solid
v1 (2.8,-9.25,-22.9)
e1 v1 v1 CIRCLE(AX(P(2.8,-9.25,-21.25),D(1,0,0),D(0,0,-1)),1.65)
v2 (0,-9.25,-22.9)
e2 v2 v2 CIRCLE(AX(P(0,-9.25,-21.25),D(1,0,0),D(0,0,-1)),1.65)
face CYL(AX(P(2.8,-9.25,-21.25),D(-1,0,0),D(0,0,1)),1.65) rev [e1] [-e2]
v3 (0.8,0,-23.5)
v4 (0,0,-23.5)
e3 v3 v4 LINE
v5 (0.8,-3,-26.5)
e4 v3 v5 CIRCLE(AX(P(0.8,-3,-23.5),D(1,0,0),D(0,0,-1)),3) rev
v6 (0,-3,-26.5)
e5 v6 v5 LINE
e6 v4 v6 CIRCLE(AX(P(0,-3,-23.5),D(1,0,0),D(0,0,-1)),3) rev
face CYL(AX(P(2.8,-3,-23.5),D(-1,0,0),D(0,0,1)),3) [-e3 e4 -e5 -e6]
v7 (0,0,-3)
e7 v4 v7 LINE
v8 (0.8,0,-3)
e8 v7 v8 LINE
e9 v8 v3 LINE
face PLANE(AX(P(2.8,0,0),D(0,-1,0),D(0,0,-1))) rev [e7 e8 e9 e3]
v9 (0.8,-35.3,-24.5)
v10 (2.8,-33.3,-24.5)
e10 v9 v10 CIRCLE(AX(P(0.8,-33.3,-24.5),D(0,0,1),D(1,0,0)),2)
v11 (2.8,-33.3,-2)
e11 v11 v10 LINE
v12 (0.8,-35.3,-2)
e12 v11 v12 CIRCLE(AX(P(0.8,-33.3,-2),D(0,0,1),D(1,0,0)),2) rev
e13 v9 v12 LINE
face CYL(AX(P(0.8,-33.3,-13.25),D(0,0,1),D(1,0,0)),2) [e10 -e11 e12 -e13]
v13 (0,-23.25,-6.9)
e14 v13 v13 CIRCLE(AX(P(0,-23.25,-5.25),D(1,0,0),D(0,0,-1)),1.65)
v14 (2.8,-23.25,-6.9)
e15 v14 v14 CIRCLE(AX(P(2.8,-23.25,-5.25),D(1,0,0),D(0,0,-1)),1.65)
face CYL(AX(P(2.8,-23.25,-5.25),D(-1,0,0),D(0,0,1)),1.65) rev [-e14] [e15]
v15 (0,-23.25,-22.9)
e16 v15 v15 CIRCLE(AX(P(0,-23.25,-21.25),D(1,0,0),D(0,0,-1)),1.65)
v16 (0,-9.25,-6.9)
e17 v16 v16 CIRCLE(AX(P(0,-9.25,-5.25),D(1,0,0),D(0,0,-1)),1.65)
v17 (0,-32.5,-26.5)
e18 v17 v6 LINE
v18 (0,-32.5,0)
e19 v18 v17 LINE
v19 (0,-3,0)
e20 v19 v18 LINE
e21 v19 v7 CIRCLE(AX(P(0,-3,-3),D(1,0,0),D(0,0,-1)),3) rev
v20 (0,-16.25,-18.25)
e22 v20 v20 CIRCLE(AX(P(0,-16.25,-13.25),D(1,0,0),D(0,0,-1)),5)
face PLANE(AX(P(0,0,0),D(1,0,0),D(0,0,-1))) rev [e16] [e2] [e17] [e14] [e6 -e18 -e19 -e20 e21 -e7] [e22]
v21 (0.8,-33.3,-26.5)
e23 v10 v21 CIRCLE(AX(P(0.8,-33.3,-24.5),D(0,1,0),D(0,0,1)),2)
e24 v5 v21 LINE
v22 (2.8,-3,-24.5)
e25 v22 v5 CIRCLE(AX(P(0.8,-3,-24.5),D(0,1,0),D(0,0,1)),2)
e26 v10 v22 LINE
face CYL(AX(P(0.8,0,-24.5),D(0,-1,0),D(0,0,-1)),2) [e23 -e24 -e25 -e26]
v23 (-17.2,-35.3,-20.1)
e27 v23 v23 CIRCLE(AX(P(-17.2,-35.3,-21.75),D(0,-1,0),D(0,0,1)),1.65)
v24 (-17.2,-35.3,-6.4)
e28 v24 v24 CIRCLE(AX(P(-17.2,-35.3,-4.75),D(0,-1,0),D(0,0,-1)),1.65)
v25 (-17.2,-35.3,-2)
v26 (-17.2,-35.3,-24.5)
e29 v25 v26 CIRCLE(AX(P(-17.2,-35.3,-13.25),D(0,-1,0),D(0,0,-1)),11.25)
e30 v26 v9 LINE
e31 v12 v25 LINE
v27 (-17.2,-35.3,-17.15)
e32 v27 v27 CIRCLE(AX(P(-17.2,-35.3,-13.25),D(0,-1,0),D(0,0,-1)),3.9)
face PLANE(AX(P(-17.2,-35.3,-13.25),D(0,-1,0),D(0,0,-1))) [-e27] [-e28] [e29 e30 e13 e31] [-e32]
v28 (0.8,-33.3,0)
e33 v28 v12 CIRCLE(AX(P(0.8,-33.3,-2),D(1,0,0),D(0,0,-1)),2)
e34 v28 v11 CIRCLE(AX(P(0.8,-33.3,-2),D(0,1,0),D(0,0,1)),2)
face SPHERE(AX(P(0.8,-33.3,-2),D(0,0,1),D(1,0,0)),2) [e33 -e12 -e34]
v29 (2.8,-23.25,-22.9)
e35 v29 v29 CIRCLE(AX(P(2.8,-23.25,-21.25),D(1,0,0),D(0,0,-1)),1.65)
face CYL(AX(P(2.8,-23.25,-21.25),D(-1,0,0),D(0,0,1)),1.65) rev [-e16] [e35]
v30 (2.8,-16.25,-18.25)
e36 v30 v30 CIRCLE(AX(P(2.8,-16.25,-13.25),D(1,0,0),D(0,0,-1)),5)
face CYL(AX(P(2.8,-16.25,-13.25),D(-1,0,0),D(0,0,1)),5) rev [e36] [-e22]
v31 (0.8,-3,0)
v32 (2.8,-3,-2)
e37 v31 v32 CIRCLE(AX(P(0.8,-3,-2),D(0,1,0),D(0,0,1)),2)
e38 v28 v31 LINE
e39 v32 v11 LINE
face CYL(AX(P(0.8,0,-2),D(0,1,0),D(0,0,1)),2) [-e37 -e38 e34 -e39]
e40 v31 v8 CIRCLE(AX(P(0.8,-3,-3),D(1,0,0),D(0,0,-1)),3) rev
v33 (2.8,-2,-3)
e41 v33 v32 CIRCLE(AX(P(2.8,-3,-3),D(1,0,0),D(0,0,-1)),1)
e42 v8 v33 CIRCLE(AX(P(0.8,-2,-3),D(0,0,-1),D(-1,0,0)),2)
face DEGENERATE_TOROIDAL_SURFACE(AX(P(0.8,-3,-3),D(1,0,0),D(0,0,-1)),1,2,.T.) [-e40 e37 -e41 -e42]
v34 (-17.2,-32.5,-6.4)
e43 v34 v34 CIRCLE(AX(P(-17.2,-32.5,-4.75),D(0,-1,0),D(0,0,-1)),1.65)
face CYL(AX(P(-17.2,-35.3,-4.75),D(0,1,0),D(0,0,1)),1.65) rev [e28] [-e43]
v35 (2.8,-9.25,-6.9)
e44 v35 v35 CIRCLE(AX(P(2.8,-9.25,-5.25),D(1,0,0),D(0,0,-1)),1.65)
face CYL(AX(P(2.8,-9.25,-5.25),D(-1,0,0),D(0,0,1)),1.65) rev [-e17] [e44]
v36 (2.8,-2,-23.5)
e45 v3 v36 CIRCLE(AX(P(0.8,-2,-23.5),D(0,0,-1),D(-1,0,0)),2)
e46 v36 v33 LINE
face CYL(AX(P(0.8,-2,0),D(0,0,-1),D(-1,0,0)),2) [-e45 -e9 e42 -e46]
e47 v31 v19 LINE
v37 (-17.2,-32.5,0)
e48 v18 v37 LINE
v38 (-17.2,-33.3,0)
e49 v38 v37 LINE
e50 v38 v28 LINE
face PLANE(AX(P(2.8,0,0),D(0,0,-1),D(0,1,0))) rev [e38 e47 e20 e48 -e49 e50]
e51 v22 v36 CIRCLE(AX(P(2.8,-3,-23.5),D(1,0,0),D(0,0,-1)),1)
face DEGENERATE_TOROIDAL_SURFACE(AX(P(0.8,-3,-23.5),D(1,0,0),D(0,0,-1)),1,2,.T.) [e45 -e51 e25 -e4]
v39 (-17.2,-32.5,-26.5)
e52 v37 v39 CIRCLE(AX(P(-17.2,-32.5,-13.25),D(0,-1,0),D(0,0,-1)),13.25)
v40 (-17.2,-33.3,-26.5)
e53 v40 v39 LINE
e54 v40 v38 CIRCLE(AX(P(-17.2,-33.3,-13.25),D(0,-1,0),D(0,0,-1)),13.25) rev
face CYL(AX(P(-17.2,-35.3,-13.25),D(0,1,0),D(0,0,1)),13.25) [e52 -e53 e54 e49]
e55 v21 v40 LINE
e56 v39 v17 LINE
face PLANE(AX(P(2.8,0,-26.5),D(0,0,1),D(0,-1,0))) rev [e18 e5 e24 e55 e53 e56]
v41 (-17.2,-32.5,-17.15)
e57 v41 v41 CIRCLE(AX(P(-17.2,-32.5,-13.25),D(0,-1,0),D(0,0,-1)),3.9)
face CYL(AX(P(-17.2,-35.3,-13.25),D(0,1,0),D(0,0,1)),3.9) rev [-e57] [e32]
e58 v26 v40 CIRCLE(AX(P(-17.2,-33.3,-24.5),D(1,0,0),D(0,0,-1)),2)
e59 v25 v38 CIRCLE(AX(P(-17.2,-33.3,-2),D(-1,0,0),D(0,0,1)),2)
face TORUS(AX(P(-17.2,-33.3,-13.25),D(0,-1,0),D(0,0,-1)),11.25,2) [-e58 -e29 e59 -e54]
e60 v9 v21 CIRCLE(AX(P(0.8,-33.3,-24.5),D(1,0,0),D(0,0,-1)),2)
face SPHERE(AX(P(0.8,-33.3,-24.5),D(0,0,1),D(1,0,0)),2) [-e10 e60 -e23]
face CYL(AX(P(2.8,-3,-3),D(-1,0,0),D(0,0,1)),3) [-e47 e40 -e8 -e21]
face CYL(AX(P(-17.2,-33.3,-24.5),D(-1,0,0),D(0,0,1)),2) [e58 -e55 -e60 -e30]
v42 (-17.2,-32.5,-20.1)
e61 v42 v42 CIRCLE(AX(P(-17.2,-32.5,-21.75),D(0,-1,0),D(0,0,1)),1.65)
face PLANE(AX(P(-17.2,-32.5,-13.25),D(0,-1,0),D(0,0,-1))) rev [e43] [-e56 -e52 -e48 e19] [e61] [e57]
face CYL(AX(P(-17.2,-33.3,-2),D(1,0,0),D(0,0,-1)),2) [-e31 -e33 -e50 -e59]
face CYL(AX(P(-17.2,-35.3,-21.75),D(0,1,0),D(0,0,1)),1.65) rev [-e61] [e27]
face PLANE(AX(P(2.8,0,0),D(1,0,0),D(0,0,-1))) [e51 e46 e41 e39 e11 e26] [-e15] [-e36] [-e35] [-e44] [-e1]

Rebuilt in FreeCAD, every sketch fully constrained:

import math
import FreeCAD as App
import Part
import Sketcher

V = App.Vector
Q = App.Units.Quantity


def edges_at(feature, points):
    """Names of the edges that pass closest to the given points."""
    edges = feature.Shape.Edges
    near = lambda p: min(range(len(edges)), key=lambda i: edges[i].distToShape(Part.Vertex(*p))[0])
    return sorted({f"Edge{near(p) + 1}" for p in points})

doc = App.newDocument("Part")
params = doc.addObject("Spreadsheet::Sheet", "Params")
for row, (alias, value) in enumerate([
    ("sketch1_diameter", "10 mm"),
    ("sketch1_diameter2", "3.3 mm"),
    ("sketch1_width", "32.5 mm"),
    ("sketch1_height", "26.5 mm"),
    ("pad1_length", "2.8 mm"),
    ("sketch2_diameter", "3.3 mm"),
    ("sketch2_diameter2", "7.8 mm"),
    ("sketch2_width", "20 mm"),
    ("sketch2_radius", "13.25 mm"),
    ("pad2_length", "2.8 mm"),
    ("fillet_radius", "3 mm"),
    ("fillet2_radius", "3 mm"),
    ("fillet3_radius", "2 mm"),
    ("fillet4_radius", "2 mm"),
], start=1):
    params.set(f"A{row}", alias)
    params.set(f"B{row}", "=" + value)
    params.setAlias(f"B{row}", alias)

body = doc.addObject("PartDesign::Body", "Body")

sketch1 = doc.addObject("Sketcher::SketchObject", "Sketch")
body.addObject(sketch1)
sketch1.AttachmentSupport = (doc.YZ_Plane, [""])
sketch1.MapMode = "FlatFace"
sketch1.addGeometry([
    Part.LineSegment(V(0, 0, 0), V(-32.5, 0, 0)),
    Part.LineSegment(V(-32.5, 0, 0), V(-32.5, -26.5, 0)),
    Part.LineSegment(V(-32.5, -26.5, 0), V(0, -26.5, 0)),
    Part.LineSegment(V(0, -26.5, 0), V(0, 0, 0)),
    Part.Circle(V(-23.2, -5.2, 0), V(0, 0, 1), 1.6),
    Part.Circle(V(-23.2, -21.2, 0), V(0, 0, 1), 1.6),
    Part.Circle(V(-9.2, -5.2, 0), V(0, 0, 1), 1.6),
    Part.Circle(V(-16.2, -13.2, 0), V(0, 0, 1), 5),
    Part.Circle(V(-9.2, -21.2, 0), V(0, 0, 1), 1.6),
], False)
sketch1.addConstraint([
    Sketcher.Constraint("Coincident", 0, 2, 1, 1),
    Sketcher.Constraint("Coincident", 1, 2, 2, 1),
    Sketcher.Constraint("Coincident", 2, 2, 3, 1),
    Sketcher.Constraint("Coincident", 3, 2, 0, 1),
    Sketcher.Constraint("Horizontal", 0),
    Sketcher.Constraint("Vertical", 1),
    Sketcher.Constraint("Horizontal", 2),
    Sketcher.Constraint("Vertical", 3),
    Sketcher.Constraint("Coincident", 3, 2, -1, 1),
    Sketcher.Constraint("Equal", 4, 5),
    Sketcher.Constraint("Equal", 5, 6),
    Sketcher.Constraint("Equal", 6, 8),
    Sketcher.Constraint("Horizontal", 4, 3, 6, 3),
    Sketcher.Constraint("Horizontal", 5, 3, 8, 3),
    Sketcher.Constraint("Vertical", 4, 3, 5, 3),
    Sketcher.Constraint("Vertical", 6, 3, 8, 3),
    Sketcher.Constraint("Diameter", 7, Q("10 mm")),
    Sketcher.Constraint("Diameter", 4, Q("3.3 mm")),
    Sketcher.Constraint("DistanceX", 0, 2, 0, 1, Q("32.5 mm")),
    Sketcher.Constraint("DistanceY", 1, 2, 1, 1, Q("26.5 mm")),
    Sketcher.Constraint("DistanceY", 5, 3, 4, 3, Q("16 mm")),
    Sketcher.Constraint("DistanceX", 4, 3, 6, 3, Q("14 mm")),
    Sketcher.Constraint("DistanceX", 4, 3, 7, 3, Q("7 mm")),
    Sketcher.Constraint("DistanceY", 7, 3, 4, 3, Q("8 mm")),
    Sketcher.Constraint("DistanceX", 4, 3, -1, 1, Q("23.25 mm")),
    Sketcher.Constraint("DistanceY", 4, 3, -1, 1, Q("5.25 mm")),
])
sketch1.setExpression("Constraints[16]", "Params.sketch1_diameter")
sketch1.setExpression("Constraints[17]", "Params.sketch1_diameter2")
sketch1.setExpression("Constraints[18]", "Params.sketch1_width")
sketch1.setExpression("Constraints[19]", "Params.sketch1_height")
pad1 = doc.addObject("PartDesign::Pad", "Pad")
body.addObject(pad1)
pad1.Profile = sketch1
pad1.setExpression("Length", "Params.pad1_length")

sketch2 = doc.addObject("Sketcher::SketchObject", "Sketch001")
body.addObject(sketch2)
sketch2.AttachmentSupport = (doc.XZ_Plane, [""])
sketch2.MapMode = "FlatFace"
sketch2.AttachmentOffset = App.Placement(V(0, 0, 32.5), App.Rotation())
sketch2.addGeometry([
    Part.LineSegment(V(2.8, 0, 0), V(-17.2, 0, 0)),
    Part.ArcOfCircle(Part.Circle(V(-17.2, -13.2, 0), V(0, 0, 1), 13.2), math.radians(90), math.radians(270)),
    Part.LineSegment(V(-17.2, -26.5, 0), V(2.8, -26.5, 0)),
    Part.LineSegment(V(2.8, -26.5, 0), V(2.8, 0, 0)),
    Part.Circle(V(-17.2, -21.8, 0), V(0, 0, 1), 1.6),
    Part.Circle(V(-17.2, -13.2, 0), V(0, 0, 1), 3.9),
    Part.Circle(V(-17.2, -4.8, 0), V(0, 0, 1), 1.6),
], False)
sketch2.addConstraint([
    Sketcher.Constraint("Tangent", 0, 2, 1, 1),
    Sketcher.Constraint("Tangent", 1, 2, 2, 1),
    Sketcher.Constraint("Coincident", 2, 2, 3, 1),
    Sketcher.Constraint("Coincident", 3, 2, 0, 1),
    Sketcher.Constraint("Horizontal", 0),
    Sketcher.Constraint("Horizontal", 2),
    Sketcher.Constraint("Vertical", 3),
    Sketcher.Constraint("Coincident", 5, 3, 1, 3),
    Sketcher.Constraint("Equal", 4, 6),
    Sketcher.Constraint("PointOnObject", 0, 2, -1),
    Sketcher.Constraint("Vertical", 1, 3, 4, 3),
    Sketcher.Constraint("Vertical", 5, 3, 6, 3),
    Sketcher.Constraint("Diameter", 4, Q("3.3 mm")),
    Sketcher.Constraint("Diameter", 5, Q("7.8 mm")),
    Sketcher.Constraint("DistanceX", 0, 2, 0, 1, Q("20 mm")),
    Sketcher.Constraint("Radius", 1, Q("13.25 mm")),
    Sketcher.Constraint("DistanceY", 4, 3, 6, 3, Q("17 mm")),
    Sketcher.Constraint("DistanceX", 1, 3, -1, 1, Q("17.2 mm")),
    Sketcher.Constraint("DistanceY", 4, 3, 1, 3, Q("8.5 mm")),
])
sketch2.setExpression("Constraints[12]", "Params.sketch2_diameter")
sketch2.setExpression("Constraints[13]", "Params.sketch2_diameter2")
sketch2.setExpression("Constraints[14]", "Params.sketch2_width")
sketch2.setExpression("Constraints[15]", "Params.sketch2_radius")
pad2 = doc.addObject("PartDesign::Pad", "Pad001")
body.addObject(pad2)
pad2.Profile = sketch2
pad2.setExpression("Length", "Params.pad2_length")
doc.recompute()

fillet = doc.addObject("PartDesign::Fillet", "Fillet")
body.addObject(fillet)
fillet.Base = (pad2, edges_at(pad2, [(1.4, 0, -26.5)]))
fillet.setExpression("Radius", "Params.fillet_radius")
doc.recompute()

fillet2 = doc.addObject("PartDesign::Fillet", "Fillet001")
body.addObject(fillet2)
fillet2.Base = (fillet, edges_at(fillet, [(1.4, 0, 0)]))
fillet2.setExpression("Radius", "Params.fillet2_radius")
doc.recompute()

fillet3 = doc.addObject("PartDesign::Fillet", "Fillet002")
body.addObject(fillet3)
fillet3.Base = (fillet2, edges_at(fillet2, [(2.8, -35.3, -13.25)]))
fillet3.setExpression("Radius", "Params.fillet3_radius")
doc.recompute()

fillet4 = doc.addObject("PartDesign::Fillet", "Fillet003")
body.addObject(fillet4)
fillet4.Base = (fillet3, edges_at(fillet3, [
    (-30.45, -35.3, -13.25),
    (-8.2, -35.3, -26.5),
    (2.8, 0, -13.25),
    (2.8, -0.879, -25.621),
    (2.8, -18.15, 0),
    (2.8, -0.879, -0.879),
    (-8.2, -35.3, 0),
    (2.214, -34.714, 0),
    (2.8, -18.15, -26.5),
    (2.214, -34.714, -26.5),
]))
fillet4.setExpression("Radius", "Params.fillet4_radius")

doc.recompute()
